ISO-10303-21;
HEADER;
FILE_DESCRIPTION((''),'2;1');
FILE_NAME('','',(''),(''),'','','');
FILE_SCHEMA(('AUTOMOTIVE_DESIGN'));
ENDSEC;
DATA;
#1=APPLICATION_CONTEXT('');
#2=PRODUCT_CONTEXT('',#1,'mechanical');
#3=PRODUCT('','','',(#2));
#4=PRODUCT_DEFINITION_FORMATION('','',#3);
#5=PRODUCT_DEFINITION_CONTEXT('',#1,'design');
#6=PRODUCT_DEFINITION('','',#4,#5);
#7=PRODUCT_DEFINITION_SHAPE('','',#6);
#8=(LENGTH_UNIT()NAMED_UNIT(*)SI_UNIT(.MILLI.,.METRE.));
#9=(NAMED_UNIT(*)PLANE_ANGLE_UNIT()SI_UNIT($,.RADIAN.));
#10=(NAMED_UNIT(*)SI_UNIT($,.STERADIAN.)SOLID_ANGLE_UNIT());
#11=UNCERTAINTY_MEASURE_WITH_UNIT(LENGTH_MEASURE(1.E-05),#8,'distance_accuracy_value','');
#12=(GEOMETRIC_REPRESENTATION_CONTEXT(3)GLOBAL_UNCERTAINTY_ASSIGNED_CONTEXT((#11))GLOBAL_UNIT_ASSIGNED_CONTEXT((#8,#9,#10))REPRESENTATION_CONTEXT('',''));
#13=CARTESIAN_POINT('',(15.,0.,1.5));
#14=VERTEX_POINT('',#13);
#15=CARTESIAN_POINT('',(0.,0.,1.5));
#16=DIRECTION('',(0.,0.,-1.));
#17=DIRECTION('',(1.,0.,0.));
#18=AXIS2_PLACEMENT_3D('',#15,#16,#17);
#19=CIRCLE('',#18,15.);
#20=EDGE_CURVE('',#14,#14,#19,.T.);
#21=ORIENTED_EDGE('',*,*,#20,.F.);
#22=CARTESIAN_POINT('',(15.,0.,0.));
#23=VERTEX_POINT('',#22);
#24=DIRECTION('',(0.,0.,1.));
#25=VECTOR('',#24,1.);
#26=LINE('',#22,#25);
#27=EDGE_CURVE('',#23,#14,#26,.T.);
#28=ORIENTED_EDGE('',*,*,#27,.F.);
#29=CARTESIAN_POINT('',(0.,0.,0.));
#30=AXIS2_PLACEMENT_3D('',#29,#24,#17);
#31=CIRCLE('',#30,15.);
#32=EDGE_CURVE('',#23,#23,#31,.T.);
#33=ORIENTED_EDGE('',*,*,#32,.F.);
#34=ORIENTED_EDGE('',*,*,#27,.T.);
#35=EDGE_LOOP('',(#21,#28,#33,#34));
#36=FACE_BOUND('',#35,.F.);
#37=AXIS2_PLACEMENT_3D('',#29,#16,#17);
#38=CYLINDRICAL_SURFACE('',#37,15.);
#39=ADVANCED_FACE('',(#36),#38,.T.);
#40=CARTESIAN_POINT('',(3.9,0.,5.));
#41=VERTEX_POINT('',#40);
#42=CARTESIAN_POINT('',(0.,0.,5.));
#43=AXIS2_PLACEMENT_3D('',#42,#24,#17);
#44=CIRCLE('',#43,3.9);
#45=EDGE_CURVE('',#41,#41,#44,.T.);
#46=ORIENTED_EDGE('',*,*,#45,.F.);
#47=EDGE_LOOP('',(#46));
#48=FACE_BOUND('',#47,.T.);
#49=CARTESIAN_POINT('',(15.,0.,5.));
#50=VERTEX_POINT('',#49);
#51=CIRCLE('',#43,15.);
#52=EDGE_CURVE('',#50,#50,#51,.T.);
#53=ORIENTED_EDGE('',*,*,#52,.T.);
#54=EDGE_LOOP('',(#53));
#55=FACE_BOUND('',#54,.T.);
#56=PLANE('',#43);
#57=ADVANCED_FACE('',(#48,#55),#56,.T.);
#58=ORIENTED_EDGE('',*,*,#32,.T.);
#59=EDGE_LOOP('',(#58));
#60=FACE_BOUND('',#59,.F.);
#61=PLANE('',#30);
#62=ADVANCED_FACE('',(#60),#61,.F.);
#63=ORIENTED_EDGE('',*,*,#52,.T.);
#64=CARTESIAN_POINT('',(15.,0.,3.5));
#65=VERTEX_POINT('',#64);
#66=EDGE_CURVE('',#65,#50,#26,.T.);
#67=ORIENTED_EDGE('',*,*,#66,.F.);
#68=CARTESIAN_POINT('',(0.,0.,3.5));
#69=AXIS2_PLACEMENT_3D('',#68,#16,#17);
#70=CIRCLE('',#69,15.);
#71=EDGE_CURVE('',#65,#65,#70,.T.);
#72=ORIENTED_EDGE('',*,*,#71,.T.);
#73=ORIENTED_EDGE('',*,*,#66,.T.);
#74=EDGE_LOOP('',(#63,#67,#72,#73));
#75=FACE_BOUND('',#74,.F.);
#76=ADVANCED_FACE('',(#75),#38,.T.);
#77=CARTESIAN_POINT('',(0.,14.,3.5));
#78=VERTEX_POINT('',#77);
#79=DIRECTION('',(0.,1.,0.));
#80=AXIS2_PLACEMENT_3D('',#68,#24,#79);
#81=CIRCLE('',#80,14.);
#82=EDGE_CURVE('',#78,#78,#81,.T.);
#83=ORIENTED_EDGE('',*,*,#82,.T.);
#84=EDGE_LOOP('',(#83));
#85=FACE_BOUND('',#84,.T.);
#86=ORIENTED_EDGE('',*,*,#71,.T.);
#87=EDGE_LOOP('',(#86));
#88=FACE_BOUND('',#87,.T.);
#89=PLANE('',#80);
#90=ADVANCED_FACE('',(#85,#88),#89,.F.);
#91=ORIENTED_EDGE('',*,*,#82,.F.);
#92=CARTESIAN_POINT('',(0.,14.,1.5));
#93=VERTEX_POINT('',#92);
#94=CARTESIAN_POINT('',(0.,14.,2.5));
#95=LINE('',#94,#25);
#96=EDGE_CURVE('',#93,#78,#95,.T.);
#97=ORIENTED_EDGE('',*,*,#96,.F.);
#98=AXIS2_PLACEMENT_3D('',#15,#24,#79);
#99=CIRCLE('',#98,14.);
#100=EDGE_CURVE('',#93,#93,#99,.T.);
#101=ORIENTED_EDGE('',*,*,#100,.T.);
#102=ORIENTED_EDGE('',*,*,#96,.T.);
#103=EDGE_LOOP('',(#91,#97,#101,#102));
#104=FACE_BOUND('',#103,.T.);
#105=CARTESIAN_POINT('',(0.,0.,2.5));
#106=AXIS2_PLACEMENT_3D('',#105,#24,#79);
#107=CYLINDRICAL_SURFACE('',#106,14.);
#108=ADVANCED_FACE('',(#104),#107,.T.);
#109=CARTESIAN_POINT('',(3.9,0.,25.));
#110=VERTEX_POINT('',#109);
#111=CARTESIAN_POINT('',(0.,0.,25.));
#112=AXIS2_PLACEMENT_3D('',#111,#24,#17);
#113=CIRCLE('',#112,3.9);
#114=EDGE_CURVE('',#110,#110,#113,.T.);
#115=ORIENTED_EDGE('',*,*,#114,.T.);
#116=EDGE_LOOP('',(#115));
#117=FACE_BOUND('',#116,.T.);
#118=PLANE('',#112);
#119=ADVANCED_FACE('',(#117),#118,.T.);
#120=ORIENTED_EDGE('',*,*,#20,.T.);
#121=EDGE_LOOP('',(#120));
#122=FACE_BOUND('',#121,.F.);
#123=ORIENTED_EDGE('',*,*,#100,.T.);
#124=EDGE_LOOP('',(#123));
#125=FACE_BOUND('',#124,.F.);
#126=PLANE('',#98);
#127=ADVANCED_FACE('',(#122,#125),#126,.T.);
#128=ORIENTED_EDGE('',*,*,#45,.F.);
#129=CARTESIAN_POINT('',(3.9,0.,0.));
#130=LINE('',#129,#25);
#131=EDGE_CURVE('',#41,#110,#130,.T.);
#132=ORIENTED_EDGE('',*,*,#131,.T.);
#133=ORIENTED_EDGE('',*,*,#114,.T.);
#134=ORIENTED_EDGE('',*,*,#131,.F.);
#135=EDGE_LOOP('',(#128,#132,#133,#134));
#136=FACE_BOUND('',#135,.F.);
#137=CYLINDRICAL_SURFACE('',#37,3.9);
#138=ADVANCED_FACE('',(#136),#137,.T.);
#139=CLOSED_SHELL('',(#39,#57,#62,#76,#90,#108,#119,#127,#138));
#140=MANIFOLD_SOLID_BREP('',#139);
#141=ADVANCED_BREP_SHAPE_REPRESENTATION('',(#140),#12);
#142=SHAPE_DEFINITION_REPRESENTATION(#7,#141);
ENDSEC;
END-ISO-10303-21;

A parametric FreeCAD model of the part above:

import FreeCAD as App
import Part
import Sketcher

doc = App.newDocument("Part")
body = doc.addObject("PartDesign::Body", "Body")

# Sketch on XY plane
sketch1 = body.newObject("Sketcher::SketchObject", "Sketch")
sketch1.AttachmentSupport = (doc.getObject("XY_Plane"), [""])
sketch1.MapMode = "FlatFace"
sketch1.addGeometry(Part.Circle(App.Vector(0, 0, 0), App.Vector(0, 0, 1), 3.9), False)
sketch1.addConstraint([
    Sketcher.Constraint("Coincident", 0, 3, -1, 1),
    Sketcher.Constraint("Diameter", 0, 7.8),
])
pad1 = body.newObject("PartDesign::Pad", "Pad")
pad1.Profile = sketch1
pad1.Length = 25

# Sketch on XY plane
sketch2 = body.newObject("Sketcher::SketchObject", "Sketch001")
sketch2.AttachmentSupport = (doc.getObject("XY_Plane"), [""])
sketch2.MapMode = "FlatFace"
sketch2.addGeometry([
    Part.Circle(App.Vector(0, 0, 0), App.Vector(0, 0, 1), 15),
    Part.Circle(App.Vector(0, 0, 0), App.Vector(0, 0, 1), 3.9),
], False)
sketch2.addConstraint([
    Sketcher.Constraint("Coincident", 0, 3, -1, 1),
    Sketcher.Constraint("Coincident", 1, 3, -1, 1),
    Sketcher.Constraint("Diameter", 0, 30.0),
    Sketcher.Constraint("Diameter", 1, 7.8),
])
pad2 = body.newObject("PartDesign::Pad", "Pad001")
pad2.Profile = sketch2
pad2.Length = 5

# Sketch on YZ plane
sketch3 = body.newObject("Sketcher::SketchObject", "Sketch002")
sketch3.AttachmentSupport = (doc.getObject("YZ_Plane"), [""])
sketch3.MapMode = "FlatFace"
sketch3.addGeometry([
    Part.LineSegment(App.Vector(14, 3.5, 0), App.Vector(14, 1.5, 0)),
    Part.LineSegment(App.Vector(14, 1.5, 0), App.Vector(16, 1.5, 0)),
    Part.LineSegment(App.Vector(16, 1.5, 0), App.Vector(16, 3.5, 0)),
    Part.LineSegment(App.Vector(16, 3.5, 0), App.Vector(14, 3.5, 0)),
], False)
sketch3.addConstraint([
    Sketcher.Constraint("Coincident", 0, 2, 1, 1),
    Sketcher.Constraint("Coincident", 1, 2, 2, 1),
    Sketcher.Constraint("Coincident", 2, 2, 3, 1),
    Sketcher.Constraint("Coincident", 3, 2, 0, 1),
    Sketcher.Constraint("Vertical", 0),
    Sketcher.Constraint("Horizontal", 1),
    Sketcher.Constraint("Vertical", 2),
    Sketcher.Constraint("Horizontal", 3),
    Sketcher.Constraint("Equal", 3, 0),
    Sketcher.Constraint("DistanceX", 1, 1, 1, 2, 2.0),
    Sketcher.Constraint("DistanceX", -1, 1, 0, 2, 14.0),
    Sketcher.Constraint("DistanceY", -1, 1, 0, 2, 1.5),
])
groove = body.newObject("PartDesign::Groove", "Groove")
groove.Profile = sketch3
groove.ReferenceAxis = (sketch3, ["V_Axis"])
groove.Angle = 360

doc.recompute()
